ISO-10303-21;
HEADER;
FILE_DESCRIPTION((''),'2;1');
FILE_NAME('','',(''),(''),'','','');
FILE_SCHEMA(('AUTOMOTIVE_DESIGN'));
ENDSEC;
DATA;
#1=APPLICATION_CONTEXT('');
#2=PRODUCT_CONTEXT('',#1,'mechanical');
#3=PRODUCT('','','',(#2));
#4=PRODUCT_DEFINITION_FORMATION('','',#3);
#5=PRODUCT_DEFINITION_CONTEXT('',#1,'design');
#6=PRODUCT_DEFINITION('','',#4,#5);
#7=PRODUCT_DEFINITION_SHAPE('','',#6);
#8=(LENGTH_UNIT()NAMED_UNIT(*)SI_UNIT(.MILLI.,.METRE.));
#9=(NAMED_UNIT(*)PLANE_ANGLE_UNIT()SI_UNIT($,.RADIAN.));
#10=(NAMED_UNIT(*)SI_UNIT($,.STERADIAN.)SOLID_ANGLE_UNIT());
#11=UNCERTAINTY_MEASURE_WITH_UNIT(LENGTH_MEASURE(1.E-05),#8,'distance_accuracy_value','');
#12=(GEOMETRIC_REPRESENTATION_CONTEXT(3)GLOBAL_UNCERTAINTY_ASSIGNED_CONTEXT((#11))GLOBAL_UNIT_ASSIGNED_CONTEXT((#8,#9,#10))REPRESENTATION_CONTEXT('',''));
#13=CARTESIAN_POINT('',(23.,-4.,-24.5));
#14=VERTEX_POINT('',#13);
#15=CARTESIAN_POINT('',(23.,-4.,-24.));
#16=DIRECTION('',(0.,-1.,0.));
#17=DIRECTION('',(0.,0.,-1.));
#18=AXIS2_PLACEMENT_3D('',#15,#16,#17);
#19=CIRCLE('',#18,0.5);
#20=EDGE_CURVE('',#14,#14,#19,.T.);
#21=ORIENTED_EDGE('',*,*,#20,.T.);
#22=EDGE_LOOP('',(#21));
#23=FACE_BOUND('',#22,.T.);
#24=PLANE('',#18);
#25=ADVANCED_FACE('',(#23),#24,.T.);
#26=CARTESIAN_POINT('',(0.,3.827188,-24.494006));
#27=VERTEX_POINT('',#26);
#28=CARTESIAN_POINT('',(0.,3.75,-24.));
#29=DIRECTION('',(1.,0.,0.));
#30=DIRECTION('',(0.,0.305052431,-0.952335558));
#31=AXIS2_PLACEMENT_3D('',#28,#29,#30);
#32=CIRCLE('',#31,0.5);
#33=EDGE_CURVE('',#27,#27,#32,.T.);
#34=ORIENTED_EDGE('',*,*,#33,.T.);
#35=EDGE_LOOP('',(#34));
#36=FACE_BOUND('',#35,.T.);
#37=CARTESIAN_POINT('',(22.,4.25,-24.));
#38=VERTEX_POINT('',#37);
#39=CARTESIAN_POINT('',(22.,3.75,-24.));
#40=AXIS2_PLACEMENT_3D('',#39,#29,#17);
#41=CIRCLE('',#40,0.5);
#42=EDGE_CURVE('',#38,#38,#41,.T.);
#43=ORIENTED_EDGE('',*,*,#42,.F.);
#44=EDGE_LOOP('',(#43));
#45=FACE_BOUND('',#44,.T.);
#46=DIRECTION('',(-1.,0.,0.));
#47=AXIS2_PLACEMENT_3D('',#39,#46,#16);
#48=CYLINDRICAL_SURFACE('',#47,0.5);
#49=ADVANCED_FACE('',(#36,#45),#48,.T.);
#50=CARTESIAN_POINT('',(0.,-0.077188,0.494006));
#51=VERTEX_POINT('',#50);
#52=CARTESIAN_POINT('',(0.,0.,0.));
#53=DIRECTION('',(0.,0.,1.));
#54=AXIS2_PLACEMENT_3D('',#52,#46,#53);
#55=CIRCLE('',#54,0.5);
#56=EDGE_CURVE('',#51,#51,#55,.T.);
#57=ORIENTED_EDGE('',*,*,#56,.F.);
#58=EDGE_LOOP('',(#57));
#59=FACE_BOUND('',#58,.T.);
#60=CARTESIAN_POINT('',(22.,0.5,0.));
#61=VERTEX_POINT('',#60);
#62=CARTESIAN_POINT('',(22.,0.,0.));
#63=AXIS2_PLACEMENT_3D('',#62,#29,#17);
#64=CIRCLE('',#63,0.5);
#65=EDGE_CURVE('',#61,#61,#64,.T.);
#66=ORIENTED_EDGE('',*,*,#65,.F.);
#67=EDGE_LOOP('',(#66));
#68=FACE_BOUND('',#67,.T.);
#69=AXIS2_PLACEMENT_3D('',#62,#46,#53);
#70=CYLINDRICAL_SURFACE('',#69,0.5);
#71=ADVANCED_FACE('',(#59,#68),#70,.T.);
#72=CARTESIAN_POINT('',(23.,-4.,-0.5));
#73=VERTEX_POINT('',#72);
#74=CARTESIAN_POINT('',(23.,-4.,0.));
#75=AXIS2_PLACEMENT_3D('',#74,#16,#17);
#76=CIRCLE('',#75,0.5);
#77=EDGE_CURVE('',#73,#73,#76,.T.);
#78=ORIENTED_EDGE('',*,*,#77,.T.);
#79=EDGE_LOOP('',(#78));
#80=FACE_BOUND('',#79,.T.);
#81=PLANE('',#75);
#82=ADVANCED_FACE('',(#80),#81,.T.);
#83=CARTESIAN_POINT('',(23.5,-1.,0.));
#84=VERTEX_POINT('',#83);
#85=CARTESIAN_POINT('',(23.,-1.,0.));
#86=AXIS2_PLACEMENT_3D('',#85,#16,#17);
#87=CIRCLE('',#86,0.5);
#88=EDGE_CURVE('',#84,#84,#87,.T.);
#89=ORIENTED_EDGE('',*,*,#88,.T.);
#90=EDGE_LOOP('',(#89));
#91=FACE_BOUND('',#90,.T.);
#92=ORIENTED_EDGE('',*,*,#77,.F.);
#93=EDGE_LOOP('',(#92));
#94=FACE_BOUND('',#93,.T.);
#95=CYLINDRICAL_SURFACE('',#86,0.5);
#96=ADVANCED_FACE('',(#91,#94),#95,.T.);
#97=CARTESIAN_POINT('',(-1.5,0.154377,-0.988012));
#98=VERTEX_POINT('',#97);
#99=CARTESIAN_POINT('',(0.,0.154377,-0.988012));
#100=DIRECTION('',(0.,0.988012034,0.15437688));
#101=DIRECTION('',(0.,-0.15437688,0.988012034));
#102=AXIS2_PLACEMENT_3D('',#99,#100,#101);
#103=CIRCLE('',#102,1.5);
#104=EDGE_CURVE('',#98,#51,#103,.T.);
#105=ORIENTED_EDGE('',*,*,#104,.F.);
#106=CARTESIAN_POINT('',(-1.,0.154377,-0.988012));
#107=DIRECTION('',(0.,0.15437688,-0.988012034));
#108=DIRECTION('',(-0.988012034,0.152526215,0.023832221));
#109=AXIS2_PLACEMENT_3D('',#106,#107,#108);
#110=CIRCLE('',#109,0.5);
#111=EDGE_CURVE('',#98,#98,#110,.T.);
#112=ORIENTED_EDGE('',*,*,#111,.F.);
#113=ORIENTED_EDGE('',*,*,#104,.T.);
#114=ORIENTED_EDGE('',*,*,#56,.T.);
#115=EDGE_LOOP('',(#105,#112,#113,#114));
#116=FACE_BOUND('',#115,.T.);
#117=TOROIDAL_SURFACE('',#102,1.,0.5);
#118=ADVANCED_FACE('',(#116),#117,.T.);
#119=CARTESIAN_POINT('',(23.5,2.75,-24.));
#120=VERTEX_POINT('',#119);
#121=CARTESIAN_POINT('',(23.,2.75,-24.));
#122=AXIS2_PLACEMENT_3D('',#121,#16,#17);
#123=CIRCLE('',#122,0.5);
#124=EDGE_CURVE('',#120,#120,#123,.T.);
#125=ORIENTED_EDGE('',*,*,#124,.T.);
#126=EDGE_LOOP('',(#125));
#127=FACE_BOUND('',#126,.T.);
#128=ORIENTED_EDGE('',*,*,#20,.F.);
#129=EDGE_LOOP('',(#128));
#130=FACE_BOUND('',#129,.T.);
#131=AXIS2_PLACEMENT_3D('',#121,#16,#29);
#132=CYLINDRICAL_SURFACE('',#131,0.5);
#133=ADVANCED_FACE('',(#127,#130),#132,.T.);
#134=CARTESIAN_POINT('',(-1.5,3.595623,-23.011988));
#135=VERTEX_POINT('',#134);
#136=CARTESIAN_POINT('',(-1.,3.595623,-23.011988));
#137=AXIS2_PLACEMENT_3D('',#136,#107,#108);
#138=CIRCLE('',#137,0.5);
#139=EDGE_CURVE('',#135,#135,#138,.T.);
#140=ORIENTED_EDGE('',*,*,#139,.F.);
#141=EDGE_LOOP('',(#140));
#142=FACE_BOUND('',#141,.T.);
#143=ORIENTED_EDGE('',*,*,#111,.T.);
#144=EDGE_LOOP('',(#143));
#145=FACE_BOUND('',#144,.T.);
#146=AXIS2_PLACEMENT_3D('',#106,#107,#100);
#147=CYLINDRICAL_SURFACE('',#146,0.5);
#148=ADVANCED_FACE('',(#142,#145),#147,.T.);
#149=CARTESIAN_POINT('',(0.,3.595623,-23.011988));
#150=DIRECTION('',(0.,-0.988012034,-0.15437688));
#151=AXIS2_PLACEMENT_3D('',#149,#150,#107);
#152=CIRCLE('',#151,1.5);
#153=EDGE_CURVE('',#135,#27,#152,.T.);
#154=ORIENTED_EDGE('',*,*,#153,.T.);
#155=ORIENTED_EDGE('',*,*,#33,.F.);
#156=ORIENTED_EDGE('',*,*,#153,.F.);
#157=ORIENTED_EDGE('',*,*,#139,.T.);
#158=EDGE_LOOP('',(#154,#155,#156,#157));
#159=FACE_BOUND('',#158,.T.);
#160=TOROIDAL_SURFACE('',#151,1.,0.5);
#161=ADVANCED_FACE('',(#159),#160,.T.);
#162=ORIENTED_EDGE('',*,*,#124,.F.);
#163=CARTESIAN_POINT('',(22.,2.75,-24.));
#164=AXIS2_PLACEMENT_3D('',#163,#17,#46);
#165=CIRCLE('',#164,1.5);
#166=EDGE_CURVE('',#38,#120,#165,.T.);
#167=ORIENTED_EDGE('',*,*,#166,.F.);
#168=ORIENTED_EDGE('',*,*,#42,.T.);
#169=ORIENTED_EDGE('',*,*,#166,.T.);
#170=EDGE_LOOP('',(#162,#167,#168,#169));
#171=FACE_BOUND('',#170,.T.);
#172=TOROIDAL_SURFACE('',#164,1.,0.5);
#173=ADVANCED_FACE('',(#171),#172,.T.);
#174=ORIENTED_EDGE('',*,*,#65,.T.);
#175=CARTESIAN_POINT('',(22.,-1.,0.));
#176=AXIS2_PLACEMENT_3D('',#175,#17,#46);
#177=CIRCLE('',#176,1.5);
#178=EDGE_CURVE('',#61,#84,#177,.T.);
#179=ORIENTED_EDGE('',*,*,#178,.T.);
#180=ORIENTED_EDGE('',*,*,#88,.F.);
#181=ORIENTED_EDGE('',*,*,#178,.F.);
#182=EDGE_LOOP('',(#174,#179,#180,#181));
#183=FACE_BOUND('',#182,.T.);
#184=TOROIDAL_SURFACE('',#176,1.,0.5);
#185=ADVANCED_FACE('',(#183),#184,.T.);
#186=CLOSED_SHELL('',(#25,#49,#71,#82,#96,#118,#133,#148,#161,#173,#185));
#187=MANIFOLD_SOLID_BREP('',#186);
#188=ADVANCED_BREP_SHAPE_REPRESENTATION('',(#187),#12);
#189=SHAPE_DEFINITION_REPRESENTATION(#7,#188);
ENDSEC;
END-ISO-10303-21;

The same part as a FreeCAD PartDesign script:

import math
import FreeCAD as App
import Part
import Sketcher
from FreeCAD import Vector

doc = App.newDocument("Part")
body = doc.addObject("PartDesign::Body", "Body")

# Sketch on YZ plane
sketch1 = body.newObject("Sketcher::SketchObject", "Sketch")
sketch1.AttachmentSupport = (doc.getObject("YZ_Plane"), [""])
sketch1.MapMode = "FlatFace"
sketch1.addGeometry(Part.Circle(Vector(0, 0, 0), Vector(0, 0, 1), 0.5), False)
sketch1.addConstraint(Sketcher.Constraint("Coincident", 0, 3, -1, 1))
sketch1.addConstraint(Sketcher.Constraint("Diameter", 0, 1.0))

# Sketch on XY plane
sketch2 = body.newObject("Sketcher::SketchObject", "Sketch001")
sketch2.AttachmentSupport = (doc.getObject("XY_Plane"), [""])
sketch2.MapMode = "FlatFace"
sketch2.addGeometry(Part.LineSegment(Vector(0, 0, 0), Vector(22, 0, 0)), False)
sketch2.addGeometry(Part.ArcOfCircle(Part.Circle(Vector(22, -1, 0), Vector(0, 0, 1), 1), math.radians(0), math.radians(90)), False)
sketch2.addGeometry(Part.LineSegment(Vector(23, -1, 0), Vector(23, -4, 0)), False)
sketch2.addConstraint(Sketcher.Constraint("Tangent", 0, 2, 1, 2))
sketch2.addConstraint(Sketcher.Constraint("Tangent", 1, 1, 2, 1))
sketch2.addConstraint(Sketcher.Constraint("Horizontal", 0))
sketch2.addConstraint(Sketcher.Constraint("Vertical", 2))
sketch2.addConstraint(Sketcher.Constraint("Coincident", 0, 1, -1, 1))
sketch2.addConstraint(Sketcher.Constraint("Radius", 1, 1.0))
sketch2.addConstraint(Sketcher.Constraint("DistanceX", 0, 1, 0, 2, 22.0))
sketch2.addConstraint(Sketcher.Constraint("DistanceY", 2, 2, 2, 1, 3.0))
doc.recompute()

additivepipe = body.newObject("PartDesign::AdditivePipe", "AdditivePipe")
additivepipe.Profile = sketch1
additivepipe.Spine = (sketch2, ["Edge1", "Edge2", "Edge3"])

# Sketch on YZ plane
sketch3 = body.newObject("Sketcher::SketchObject", "Sketch002")
sketch3.AttachmentSupport = (doc.getObject("YZ_Plane"), [""])
sketch3.MapMode = "FlatFace"
sketch3.addGeometry(Part.Circle(Vector(0, 0, 0), Vector(0, 0, 1), 0.5), False)
sketch3.addConstraint(Sketcher.Constraint("Coincident", 0, 3, -1, 1))
sketch3.addConstraint(Sketcher.Constraint("Diameter", 0, 1.0))

# Sketch on an angled plane
sketch4 = body.newObject("Sketcher::SketchObject", "Sketch003")
sketch4.Placement = App.Placement(Vector(0, 0, 0), App.Rotation(Vector(0, -0.15437688, 0.988012034), Vector(1, 0, 0), Vector(0, 0.988012034, 0.15437688), "ZXY"))
sketch4.addGeometry(Part.ArcOfCircle(Part.Circle(Vector(-23.3, 0, 0), Vector(0, 0, 1), 1), math.radians(-180), math.radians(-90)), False)
sketch4.addGeometry(Part.LineSegment(Vector(-23.3, -1, 0), Vector(-1, -1, 0)), False)
sketch4.addGeometry(Part.ArcOfCircle(Part.Circle(Vector(-1, 0, 0), Vector(0, 0, 1), 1), math.radians(-90), math.radians(0)), False)
sketch4.addConstraint(Sketcher.Constraint("Tangent", 0, 2, 1, 1))
sketch4.addConstraint(Sketcher.Constraint("Tangent", 1, 2, 2, 1))
sketch4.addConstraint(Sketcher.Constraint("Horizontal", 1))
sketch4.addConstraint(Sketcher.Constraint("Coincident", 2, 2, -1, 1))
sketch4.addConstraint(Sketcher.Constraint("Equal", 0, 2))
sketch4.addConstraint(Sketcher.Constraint("PointOnObject", 0, 3, -1))
sketch4.addConstraint(Sketcher.Constraint("PointOnObject", 0, 1, -1))
sketch4.addConstraint(Sketcher.Constraint("Radius", 0, 1.0))
sketch4.addConstraint(Sketcher.Constraint("DistanceX", 1, 1, 1, 2, 22.291202))
doc.recompute()

additivepipe2 = body.newObject("PartDesign::AdditivePipe", "AdditivePipe001")
additivepipe2.Profile = sketch3
additivepipe2.Spine = (sketch4, ["Edge1", "Edge2", "Edge3"])

# Sketch on YZ plane
sketch5 = body.newObject("Sketcher::SketchObject", "Sketch004")
sketch5.AttachmentSupport = (doc.getObject("YZ_Plane"), [""])
sketch5.MapMode = "FlatFace"
sketch5.addGeometry(Part.Circle(Vector(3.8, -24, 0), Vector(0, 0, 1), 0.5), False)
sketch5.addConstraint(Sketcher.Constraint("Diameter", 0, 1.0))
sketch5.addConstraint(Sketcher.Constraint("DistanceY", 0, 3, -1, 1, 24.0))
sketch5.addConstraint(Sketcher.Constraint("DistanceX", -1, 1, 0, 3, 3.75))

# Sketch on XY plane
sketch6 = body.newObject("Sketcher::SketchObject", "Sketch005")
sketch6.AttachmentSupport = (doc.getObject("XY_Plane"), [""])
sketch6.MapMode = "FlatFace"
sketch6.AttachmentOffset = App.Placement(Vector(0, 0, -24), App.Rotation())
sketch6.addGeometry(Part.LineSegment(Vector(0, 3.8, 0), Vector(22, 3.8, 0)), False)
sketch6.addGeometry(Part.ArcOfCircle(Part.Circle(Vector(22, 2.7, 0), Vector(0, 0, 1), 1), math.radians(0), math.radians(90)), False)
sketch6.addGeometry(Part.LineSegment(Vector(23, 2.8, 0), Vector(23, -4, 0)), False)
sketch6.addConstraint(Sketcher.Constraint("Tangent", 0, 2, 1, 2))
sketch6.addConstraint(Sketcher.Constraint("Tangent", 1, 1, 2, 1))
sketch6.addConstraint(Sketcher.Constraint("Horizontal", 0))
sketch6.addConstraint(Sketcher.Constraint("Vertical", 2))
sketch6.addConstraint(Sketcher.Constraint("PointOnObject", 0, 1, -2))
sketch6.addConstraint(Sketcher.Constraint("Radius", 1, 1.0))
sketch6.addConstraint(Sketcher.Constraint("DistanceX", 0, 1, 0, 2, 22.0))
sketch6.addConstraint(Sketcher.Constraint("DistanceY", 2, 2, -1, 1, 4.0))
sketch6.addConstraint(Sketcher.Constraint("DistanceY", 2, 2, 2, 1, 6.75))
doc.recompute()

additivepipe3 = body.newObject("PartDesign::AdditivePipe", "AdditivePipe002")
additivepipe3.Profile = sketch5
additivepipe3.Spine = (sketch6, ["Edge1", "Edge2", "Edge3"])

doc.recompute()
